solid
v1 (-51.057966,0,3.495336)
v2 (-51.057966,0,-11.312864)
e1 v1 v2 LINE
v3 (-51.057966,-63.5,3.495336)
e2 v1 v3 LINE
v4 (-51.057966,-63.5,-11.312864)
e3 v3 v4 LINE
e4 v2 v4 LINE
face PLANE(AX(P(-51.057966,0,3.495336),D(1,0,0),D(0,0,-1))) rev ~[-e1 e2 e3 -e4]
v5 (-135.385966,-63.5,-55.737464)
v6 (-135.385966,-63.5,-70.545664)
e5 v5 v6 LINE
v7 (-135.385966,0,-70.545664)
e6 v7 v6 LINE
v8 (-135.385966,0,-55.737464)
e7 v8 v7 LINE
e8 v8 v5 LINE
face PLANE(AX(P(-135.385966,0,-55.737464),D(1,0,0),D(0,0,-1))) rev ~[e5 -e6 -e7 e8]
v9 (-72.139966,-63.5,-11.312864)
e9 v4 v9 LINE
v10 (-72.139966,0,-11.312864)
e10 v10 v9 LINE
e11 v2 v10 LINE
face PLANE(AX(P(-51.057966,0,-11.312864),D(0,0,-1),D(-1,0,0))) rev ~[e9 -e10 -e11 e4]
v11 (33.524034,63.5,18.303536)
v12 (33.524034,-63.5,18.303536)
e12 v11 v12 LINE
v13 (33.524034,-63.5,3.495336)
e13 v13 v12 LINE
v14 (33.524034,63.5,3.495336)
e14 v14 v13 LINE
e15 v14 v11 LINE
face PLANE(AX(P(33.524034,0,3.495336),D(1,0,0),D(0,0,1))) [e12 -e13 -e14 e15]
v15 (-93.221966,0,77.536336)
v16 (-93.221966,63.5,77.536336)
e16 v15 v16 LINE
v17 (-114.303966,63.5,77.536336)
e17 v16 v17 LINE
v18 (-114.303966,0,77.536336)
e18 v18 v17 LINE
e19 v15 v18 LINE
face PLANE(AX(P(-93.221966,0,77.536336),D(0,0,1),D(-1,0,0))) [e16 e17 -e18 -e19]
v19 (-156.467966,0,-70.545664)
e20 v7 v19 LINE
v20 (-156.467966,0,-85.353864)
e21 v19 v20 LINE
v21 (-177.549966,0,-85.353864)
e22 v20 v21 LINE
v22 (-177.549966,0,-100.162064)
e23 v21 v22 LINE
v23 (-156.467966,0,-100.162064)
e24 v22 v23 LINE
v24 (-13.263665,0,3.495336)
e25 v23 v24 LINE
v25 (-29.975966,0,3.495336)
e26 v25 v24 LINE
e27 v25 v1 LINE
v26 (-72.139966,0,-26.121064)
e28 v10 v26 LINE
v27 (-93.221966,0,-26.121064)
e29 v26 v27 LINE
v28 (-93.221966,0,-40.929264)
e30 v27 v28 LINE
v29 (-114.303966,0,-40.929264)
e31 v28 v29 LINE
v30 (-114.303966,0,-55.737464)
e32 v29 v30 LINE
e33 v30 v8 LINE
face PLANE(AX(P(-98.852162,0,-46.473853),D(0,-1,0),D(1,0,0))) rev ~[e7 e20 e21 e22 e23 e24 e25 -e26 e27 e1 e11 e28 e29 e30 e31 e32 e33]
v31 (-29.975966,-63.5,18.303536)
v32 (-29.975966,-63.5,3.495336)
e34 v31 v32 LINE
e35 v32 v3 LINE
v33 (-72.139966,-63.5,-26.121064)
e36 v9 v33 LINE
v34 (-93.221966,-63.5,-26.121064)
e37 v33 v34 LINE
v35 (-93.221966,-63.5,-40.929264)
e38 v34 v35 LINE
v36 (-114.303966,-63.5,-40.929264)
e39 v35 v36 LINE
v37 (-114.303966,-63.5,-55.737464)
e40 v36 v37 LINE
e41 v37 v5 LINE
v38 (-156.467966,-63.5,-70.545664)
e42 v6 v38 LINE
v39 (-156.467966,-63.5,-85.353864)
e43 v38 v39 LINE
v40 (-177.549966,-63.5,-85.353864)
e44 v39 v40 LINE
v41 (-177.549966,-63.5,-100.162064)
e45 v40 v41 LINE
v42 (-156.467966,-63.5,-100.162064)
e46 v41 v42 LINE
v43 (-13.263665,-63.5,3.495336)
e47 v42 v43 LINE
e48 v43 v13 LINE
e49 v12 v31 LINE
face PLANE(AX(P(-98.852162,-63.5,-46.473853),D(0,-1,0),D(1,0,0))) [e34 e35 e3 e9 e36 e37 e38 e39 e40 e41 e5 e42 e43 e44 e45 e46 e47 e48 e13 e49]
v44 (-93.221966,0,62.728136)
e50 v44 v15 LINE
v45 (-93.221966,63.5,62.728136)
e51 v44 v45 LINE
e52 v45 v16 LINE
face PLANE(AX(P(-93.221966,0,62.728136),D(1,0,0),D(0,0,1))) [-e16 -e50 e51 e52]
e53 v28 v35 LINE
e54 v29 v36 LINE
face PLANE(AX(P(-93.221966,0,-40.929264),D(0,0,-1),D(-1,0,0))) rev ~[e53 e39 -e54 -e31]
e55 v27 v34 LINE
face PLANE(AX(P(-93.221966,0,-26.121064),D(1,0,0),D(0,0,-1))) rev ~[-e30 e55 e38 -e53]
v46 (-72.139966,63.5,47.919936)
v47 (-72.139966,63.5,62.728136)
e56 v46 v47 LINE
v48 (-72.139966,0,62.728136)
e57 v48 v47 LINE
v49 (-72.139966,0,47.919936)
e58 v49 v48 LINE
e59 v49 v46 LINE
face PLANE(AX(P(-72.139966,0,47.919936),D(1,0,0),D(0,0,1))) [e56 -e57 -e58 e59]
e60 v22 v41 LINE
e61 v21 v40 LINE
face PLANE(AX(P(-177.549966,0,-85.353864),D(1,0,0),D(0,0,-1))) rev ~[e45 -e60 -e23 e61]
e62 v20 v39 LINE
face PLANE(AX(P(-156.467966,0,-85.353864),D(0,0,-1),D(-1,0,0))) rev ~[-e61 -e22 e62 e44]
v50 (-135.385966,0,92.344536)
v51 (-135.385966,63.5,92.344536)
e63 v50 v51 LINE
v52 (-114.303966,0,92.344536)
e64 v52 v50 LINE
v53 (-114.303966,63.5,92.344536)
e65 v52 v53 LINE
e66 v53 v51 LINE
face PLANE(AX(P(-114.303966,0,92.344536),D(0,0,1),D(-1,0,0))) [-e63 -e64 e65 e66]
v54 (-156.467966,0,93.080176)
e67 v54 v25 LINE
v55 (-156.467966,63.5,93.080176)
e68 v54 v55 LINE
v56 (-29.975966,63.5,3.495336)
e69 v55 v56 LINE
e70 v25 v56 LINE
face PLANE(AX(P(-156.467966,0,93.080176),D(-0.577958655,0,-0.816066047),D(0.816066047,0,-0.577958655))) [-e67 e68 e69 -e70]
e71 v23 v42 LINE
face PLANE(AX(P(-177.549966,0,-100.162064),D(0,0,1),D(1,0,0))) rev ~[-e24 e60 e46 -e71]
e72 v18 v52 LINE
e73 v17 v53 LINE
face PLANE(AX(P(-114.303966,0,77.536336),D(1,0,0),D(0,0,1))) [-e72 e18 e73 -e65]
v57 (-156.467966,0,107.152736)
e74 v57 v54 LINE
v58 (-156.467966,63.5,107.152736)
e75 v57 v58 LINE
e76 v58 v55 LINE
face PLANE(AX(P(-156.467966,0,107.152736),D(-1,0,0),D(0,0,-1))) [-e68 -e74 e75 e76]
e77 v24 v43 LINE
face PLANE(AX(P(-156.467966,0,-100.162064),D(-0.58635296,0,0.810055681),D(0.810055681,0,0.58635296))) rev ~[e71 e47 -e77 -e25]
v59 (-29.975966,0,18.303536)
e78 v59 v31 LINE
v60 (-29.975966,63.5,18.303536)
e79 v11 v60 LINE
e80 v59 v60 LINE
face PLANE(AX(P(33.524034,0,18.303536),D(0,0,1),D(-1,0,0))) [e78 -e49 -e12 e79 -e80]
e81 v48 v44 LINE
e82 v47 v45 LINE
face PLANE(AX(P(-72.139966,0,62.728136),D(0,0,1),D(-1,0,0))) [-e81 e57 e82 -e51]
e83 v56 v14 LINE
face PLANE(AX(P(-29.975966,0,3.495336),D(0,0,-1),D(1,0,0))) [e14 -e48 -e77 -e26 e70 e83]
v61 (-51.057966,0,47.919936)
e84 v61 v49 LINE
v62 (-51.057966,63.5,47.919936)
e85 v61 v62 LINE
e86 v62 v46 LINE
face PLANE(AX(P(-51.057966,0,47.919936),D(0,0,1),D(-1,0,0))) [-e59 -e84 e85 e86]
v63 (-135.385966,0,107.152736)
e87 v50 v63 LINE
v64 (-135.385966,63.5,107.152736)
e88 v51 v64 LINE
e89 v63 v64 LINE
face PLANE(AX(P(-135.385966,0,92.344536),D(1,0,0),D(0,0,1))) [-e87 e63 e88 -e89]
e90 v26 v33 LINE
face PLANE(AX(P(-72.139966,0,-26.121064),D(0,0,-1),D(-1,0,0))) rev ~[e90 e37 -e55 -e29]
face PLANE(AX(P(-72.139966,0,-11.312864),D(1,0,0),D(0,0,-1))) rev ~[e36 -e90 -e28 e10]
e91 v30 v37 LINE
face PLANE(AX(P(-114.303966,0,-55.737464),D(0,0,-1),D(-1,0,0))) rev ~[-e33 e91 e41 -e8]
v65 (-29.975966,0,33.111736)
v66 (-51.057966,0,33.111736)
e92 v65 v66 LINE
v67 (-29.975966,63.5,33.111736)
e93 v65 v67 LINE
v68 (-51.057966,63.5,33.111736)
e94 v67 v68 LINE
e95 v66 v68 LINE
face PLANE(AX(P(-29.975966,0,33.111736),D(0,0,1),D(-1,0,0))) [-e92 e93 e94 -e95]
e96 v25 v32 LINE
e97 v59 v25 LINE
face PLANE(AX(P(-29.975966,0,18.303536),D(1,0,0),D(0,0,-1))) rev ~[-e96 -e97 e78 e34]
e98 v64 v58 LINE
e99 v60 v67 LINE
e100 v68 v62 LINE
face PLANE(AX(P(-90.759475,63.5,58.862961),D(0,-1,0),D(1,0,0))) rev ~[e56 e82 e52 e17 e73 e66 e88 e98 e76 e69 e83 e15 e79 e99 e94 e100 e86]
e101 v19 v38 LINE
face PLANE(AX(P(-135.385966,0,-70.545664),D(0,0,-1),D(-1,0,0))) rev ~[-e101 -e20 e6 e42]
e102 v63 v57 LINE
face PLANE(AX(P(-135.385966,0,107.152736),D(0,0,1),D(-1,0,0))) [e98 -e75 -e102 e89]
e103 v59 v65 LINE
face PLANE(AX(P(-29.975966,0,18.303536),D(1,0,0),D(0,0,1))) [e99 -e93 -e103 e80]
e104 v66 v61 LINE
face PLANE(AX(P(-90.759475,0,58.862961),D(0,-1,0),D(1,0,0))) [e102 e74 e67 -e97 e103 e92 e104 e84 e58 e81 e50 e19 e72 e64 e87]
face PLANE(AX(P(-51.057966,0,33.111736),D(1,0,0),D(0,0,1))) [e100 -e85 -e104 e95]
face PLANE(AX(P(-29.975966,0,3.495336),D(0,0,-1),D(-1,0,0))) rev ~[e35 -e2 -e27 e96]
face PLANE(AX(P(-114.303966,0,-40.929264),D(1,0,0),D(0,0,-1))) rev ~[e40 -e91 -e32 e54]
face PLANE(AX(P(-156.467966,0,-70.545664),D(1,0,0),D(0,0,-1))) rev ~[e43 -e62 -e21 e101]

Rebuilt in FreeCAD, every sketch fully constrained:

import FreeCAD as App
import Part
import Sketcher

V = App.Vector
Q = App.Units.Quantity

doc = App.newDocument("Part")
body = doc.addObject("PartDesign::Body", "Body")

# Sketch on XZ plane
sketch1 = doc.addObject("Sketcher::SketchObject", "Sketch")
body.addObject(sketch1)
sketch1.AttachmentSupport = (doc.XZ_Plane, [""])
sketch1.MapMode = "FlatFace"
sketch1.addGeometry(Part.LineSegment(V(-178, -85, 0), V(-178, -100, 0)), False)
sketch1.addGeometry(Part.LineSegment(V(-178, -100, 0), V(-156, -100, 0)), False)
sketch1.addGeometry(Part.LineSegment(V(-156, -100, 0), V(-13, 3, 0)), False)
sketch1.addGeometry(Part.LineSegment(V(-13, 3, 0), V(34, 3, 0)), False)
sketch1.addGeometry(Part.LineSegment(V(34, 3, 0), V(34, 18, 0)), False)
sketch1.addGeometry(Part.LineSegment(V(34, 18, 0), V(-30, 18, 0)), False)
sketch1.addGeometry(Part.LineSegment(V(-30, 18, 0), V(-30, 3, 0)), False)
sketch1.addGeometry(Part.LineSegment(V(-30, 3, 0), V(-51, 3, 0)), False)
sketch1.addGeometry(Part.LineSegment(V(-51, 3, 0), V(-51, -11, 0)), False)
sketch1.addGeometry(Part.LineSegment(V(-51, -11, 0), V(-72, -11, 0)), False)
sketch1.addGeometry(Part.LineSegment(V(-72, -11, 0), V(-72, -26, 0)), False)
sketch1.addGeometry(Part.LineSegment(V(-72, -26, 0), V(-93, -26, 0)), False)
sketch1.addGeometry(Part.LineSegment(V(-93, -26, 0), V(-93, -41, 0)), False)
sketch1.addGeometry(Part.LineSegment(V(-93, -41, 0), V(-114, -41, 0)), False)
sketch1.addGeometry(Part.LineSegment(V(-114, -41, 0), V(-114, -56, 0)), False)
sketch1.addGeometry(Part.LineSegment(V(-114, -56, 0), V(-135, -56, 0)), False)
sketch1.addGeometry(Part.LineSegment(V(-135, -56, 0), V(-135, -71, 0)), False)
sketch1.addGeometry(Part.LineSegment(V(-135, -71, 0), V(-156, -71, 0)), False)
sketch1.addGeometry(Part.LineSegment(V(-156, -71, 0), V(-156, -85, 0)), False)
sketch1.addGeometry(Part.LineSegment(V(-156, -85, 0), V(-178, -85, 0)), False)
sketch1.addConstraint(Sketcher.Constraint("Coincident", 0, 2, 1, 1))
sketch1.addConstraint(Sketcher.Constraint("Coincident", 1, 2, 2, 1))
sketch1.addConstraint(Sketcher.Constraint("Coincident", 2, 2, 3, 1))
sketch1.addConstraint(Sketcher.Constraint("Coincident", 3, 2, 4, 1))
sketch1.addConstraint(Sketcher.Constraint("Coincident", 4, 2, 5, 1))
sketch1.addConstraint(Sketcher.Constraint("Coincident", 5, 2, 6, 1))
sketch1.addConstraint(Sketcher.Constraint("Coincident", 6, 2, 7, 1))
sketch1.addConstraint(Sketcher.Constraint("Coincident", 7, 2, 8, 1))
sketch1.addConstraint(Sketcher.Constraint("Coincident", 8, 2, 9, 1))
sketch1.addConstraint(Sketcher.Constraint("Coincident", 9, 2, 10, 1))
sketch1.addConstraint(Sketcher.Constraint("Coincident", 10, 2, 11, 1))
sketch1.addConstraint(Sketcher.Constraint("Coincident", 11, 2, 12, 1))
sketch1.addConstraint(Sketcher.Constraint("Coincident", 12, 2, 13, 1))
sketch1.addConstraint(Sketcher.Constraint("Coincident", 13, 2, 14, 1))
sketch1.addConstraint(Sketcher.Constraint("Coincident", 14, 2, 15, 1))
sketch1.addConstraint(Sketcher.Constraint("Coincident", 15, 2, 16, 1))
sketch1.addConstraint(Sketcher.Constraint("Coincident", 16, 2, 17, 1))
sketch1.addConstraint(Sketcher.Constraint("Coincident", 17, 2, 18, 1))
sketch1.addConstraint(Sketcher.Constraint("Coincident", 18, 2, 19, 1))
sketch1.addConstraint(Sketcher.Constraint("Coincident", 19, 2, 0, 1))
sketch1.addConstraint(Sketcher.Constraint("Vertical", 0))
sketch1.addConstraint(Sketcher.Constraint("Horizontal", 1))
sketch1.addConstraint(Sketcher.Constraint("Horizontal", 3))
sketch1.addConstraint(Sketcher.Constraint("Vertical", 4))
sketch1.addConstraint(Sketcher.Constraint("Horizontal", 5))
sketch1.addConstraint(Sketcher.Constraint("Vertical", 6))
sketch1.addConstraint(Sketcher.Constraint("Horizontal", 7))
sketch1.addConstraint(Sketcher.Constraint("Vertical", 8))
sketch1.addConstraint(Sketcher.Constraint("Horizontal", 9))
sketch1.addConstraint(Sketcher.Constraint("Vertical", 10))
sketch1.addConstraint(Sketcher.Constraint("Horizontal", 11))
sketch1.addConstraint(Sketcher.Constraint("Vertical", 12))
sketch1.addConstraint(Sketcher.Constraint("Horizontal", 13))
sketch1.addConstraint(Sketcher.Constraint("Vertical", 14))
sketch1.addConstraint(Sketcher.Constraint("Horizontal", 15))
sketch1.addConstraint(Sketcher.Constraint("Vertical", 16))
sketch1.addConstraint(Sketcher.Constraint("Horizontal", 17))
sketch1.addConstraint(Sketcher.Constraint("Vertical", 18))
sketch1.addConstraint(Sketcher.Constraint("Horizontal", 19))
sketch1.addConstraint(Sketcher.Constraint("Horizontal", 3, 2, 6, 2))
sketch1.addConstraint(Sketcher.Constraint("Vertical", 1, 2, 17, 2))
sketch1.addConstraint(Sketcher.Constraint("Equal", 1, 7))
sketch1.addConstraint(Sketcher.Constraint("Equal", 7, 9))
sketch1.addConstraint(Sketcher.Constraint("Equal", 9, 11))
sketch1.addConstraint(Sketcher.Constraint("Equal", 11, 13))
sketch1.addConstraint(Sketcher.Constraint("Equal", 13, 15))
sketch1.addConstraint(Sketcher.Constraint("Equal", 15, 17))
sketch1.addConstraint(Sketcher.Constraint("Equal", 0, 4))
sketch1.addConstraint(Sketcher.Constraint("Equal", 6, 8))
sketch1.addConstraint(Sketcher.Constraint("Equal", 8, 10))
sketch1.addConstraint(Sketcher.Constraint("Equal", 10, 12))
sketch1.addConstraint(Sketcher.Constraint("Equal", 12, 14))
sketch1.addConstraint(Sketcher.Constraint("Equal", 14, 16))
sketch1.addConstraint(Sketcher.Constraint("Equal", 16, 18))
sketch1.addConstraint(Sketcher.Constraint("DistanceX", 5, 2, 5, 1, Q("2.5 in")))
sketch1.addConstraint(Sketcher.Constraint("DistanceX", 1, 1, 1, 2, Q("0.83 in")))
sketch1.addConstraint(Sketcher.Constraint("DistanceY", 0, 2, 0, 1, Q("0.583 in")))
sketch1.addConstraint(Sketcher.Constraint("DistanceX", 3, 1, 3, 2, 46.787699))
sketch1.addConstraint(Sketcher.Constraint("DistanceX", 0, 2, -1, 1, 177.549966))
sketch1.addConstraint(Sketcher.Constraint("DistanceY", 0, 2, -1, 1, 100.162064))
pad1 = doc.addObject("PartDesign::Pad", "Pad")
body.addObject(pad1)
pad1.Profile = sketch1
pad1.Length = Q("2.5 in")

# Sketch on XZ plane
sketch2 = doc.addObject("Sketcher::SketchObject", "Sketch001")
body.addObject(sketch2)
sketch2.AttachmentSupport = (doc.XZ_Plane, [""])
sketch2.MapMode = "FlatFace"
sketch2.addGeometry(Part.LineSegment(V(-156, 93, 0), V(-30, 3, 0)), False)
sketch2.addGeometry(Part.LineSegment(V(-30, 3, 0), V(34, 3, 0)), False)
sketch2.addGeometry(Part.LineSegment(V(34, 3, 0), V(34, 18, 0)), False)
sketch2.addGeometry(Part.LineSegment(V(34, 18, 0), V(-30, 18, 0)), False)
sketch2.addGeometry(Part.LineSegment(V(-30, 18, 0), V(-30, 33, 0)), False)
sketch2.addGeometry(Part.LineSegment(V(-30, 33, 0), V(-51, 33, 0)), False)
sketch2.addGeometry(Part.LineSegment(V(-51, 33, 0), V(-51, 48, 0)), False)
sketch2.addGeometry(Part.LineSegment(V(-51, 48, 0), V(-72, 48, 0)), False)
sketch2.addGeometry(Part.LineSegment(V(-72, 48, 0), V(-72, 63, 0)), False)
sketch2.addGeometry(Part.LineSegment(V(-72, 63, 0), V(-93, 63, 0)), False)
sketch2.addGeometry(Part.LineSegment(V(-93, 63, 0), V(-93, 78, 0)), False)
sketch2.addGeometry(Part.LineSegment(V(-93, 78, 0), V(-114, 78, 0)), False)
sketch2.addGeometry(Part.LineSegment(V(-114, 78, 0), V(-114, 92, 0)), False)
sketch2.addGeometry(Part.LineSegment(V(-114, 92, 0), V(-135, 92, 0)), False)
sketch2.addGeometry(Part.LineSegment(V(-135, 92, 0), V(-135, 107, 0)), False)
sketch2.addGeometry(Part.LineSegment(V(-135, 107, 0), V(-156, 107, 0)), False)
sketch2.addGeometry(Part.LineSegment(V(-156, 107, 0), V(-156, 93, 0)), False)
sketch2.addConstraint(Sketcher.Constraint("Coincident", 0, 2, 1, 1))
sketch2.addConstraint(Sketcher.Constraint("Coincident", 1, 2, 2, 1))
sketch2.addConstraint(Sketcher.Constraint("Coincident", 2, 2, 3, 1))
sketch2.addConstraint(Sketcher.Constraint("Coincident", 3, 2, 4, 1))
sketch2.addConstraint(Sketcher.Constraint("Coincident", 4, 2, 5, 1))
sketch2.addConstraint(Sketcher.Constraint("Coincident", 5, 2, 6, 1))
sketch2.addConstraint(Sketcher.Constraint("Coincident", 6, 2, 7, 1))
sketch2.addConstraint(Sketcher.Constraint("Coincident", 7, 2, 8, 1))
sketch2.addConstraint(Sketcher.Constraint("Coincident", 8, 2, 9, 1))
sketch2.addConstraint(Sketcher.Constraint("Coincident", 9, 2, 10, 1))
sketch2.addConstraint(Sketcher.Constraint("Coincident", 10, 2, 11, 1))
sketch2.addConstraint(Sketcher.Constraint("Coincident", 11, 2, 12, 1))
sketch2.addConstraint(Sketcher.Constraint("Coincident", 12, 2, 13, 1))
sketch2.addConstraint(Sketcher.Constraint("Coincident", 13, 2, 14, 1))
sketch2.addConstraint(Sketcher.Constraint("Coincident", 14, 2, 15, 1))
sketch2.addConstraint(Sketcher.Constraint("Coincident", 15, 2, 16, 1))
sketch2.addConstraint(Sketcher.Constraint("Coincident", 16, 2, 0, 1))
sketch2.addConstraint(Sketcher.Constraint("Horizontal", 1))
sketch2.addConstraint(Sketcher.Constraint("Vertical", 2))
sketch2.addConstraint(Sketcher.Constraint("Horizontal", 3))
sketch2.addConstraint(Sketcher.Constraint("Vertical", 4))
sketch2.addConstraint(Sketcher.Constraint("Horizontal", 5))
sketch2.addConstraint(Sketcher.Constraint("Vertical", 6))
sketch2.addConstraint(Sketcher.Constraint("Horizontal", 7))
sketch2.addConstraint(Sketcher.Constraint("Vertical", 8))
sketch2.addConstraint(Sketcher.Constraint("Horizontal", 9))
sketch2.addConstraint(Sketcher.Constraint("Vertical", 10))
sketch2.addConstraint(Sketcher.Constraint("Horizontal", 11))
sketch2.addConstraint(Sketcher.Constraint("Vertical", 12))
sketch2.addConstraint(Sketcher.Constraint("Horizontal", 13))
sketch2.addConstraint(Sketcher.Constraint("Vertical", 14))
sketch2.addConstraint(Sketcher.Constraint("Horizontal", 15))
sketch2.addConstraint(Sketcher.Constraint("Vertical", 16))
sketch2.addConstraint(Sketcher.Constraint("Vertical", 0, 2, 3, 2))
sketch2.addConstraint(Sketcher.Constraint("Equal", 5, 7))
sketch2.addConstraint(Sketcher.Constraint("Equal", 7, 9))
sketch2.addConstraint(Sketcher.Constraint("Equal", 9, 11))
sketch2.addConstraint(Sketcher.Constraint("Equal", 11, 13))
sketch2.addConstraint(Sketcher.Constraint("Equal", 13, 15))
sketch2.addConstraint(Sketcher.Constraint("Equal", 2, 4))
sketch2.addConstraint(Sketcher.Constraint("Equal", 4, 6))
sketch2.addConstraint(Sketcher.Constraint("Equal", 6, 8))
sketch2.addConstraint(Sketcher.Constraint("Equal", 8, 10))
sketch2.addConstraint(Sketcher.Constraint("Equal", 10, 12))
sketch2.addConstraint(Sketcher.Constraint("Equal", 12, 14))
sketch2.addConstraint(Sketcher.Constraint("DistanceX", 1, 1, 1, 2, Q("2.5 in")))
sketch2.addConstraint(Sketcher.Constraint("DistanceX", 5, 2, 5, 1, Q("0.83 in")))
sketch2.addConstraint(Sketcher.Constraint("DistanceY", 2, 1, 2, 2, Q("0.583 in")))
sketch2.addConstraint(Sketcher.Constraint("DistanceY", 16, 2, 16, 1, 14.07256))
sketch2.addConstraint(Sketcher.Constraint("DistanceX", 0, 2, -1, 1, 29.975966))
sketch2.addConstraint(Sketcher.Constraint("DistanceY", -1, 1, 0, 2, 3.495336))
pad2 = doc.addObject("PartDesign::Pad", "Pad001")
body.addObject(pad2)
pad2.Profile = sketch2
pad2.Length = Q("2.5 in")
pad2.Reversed = True

doc.recompute()
